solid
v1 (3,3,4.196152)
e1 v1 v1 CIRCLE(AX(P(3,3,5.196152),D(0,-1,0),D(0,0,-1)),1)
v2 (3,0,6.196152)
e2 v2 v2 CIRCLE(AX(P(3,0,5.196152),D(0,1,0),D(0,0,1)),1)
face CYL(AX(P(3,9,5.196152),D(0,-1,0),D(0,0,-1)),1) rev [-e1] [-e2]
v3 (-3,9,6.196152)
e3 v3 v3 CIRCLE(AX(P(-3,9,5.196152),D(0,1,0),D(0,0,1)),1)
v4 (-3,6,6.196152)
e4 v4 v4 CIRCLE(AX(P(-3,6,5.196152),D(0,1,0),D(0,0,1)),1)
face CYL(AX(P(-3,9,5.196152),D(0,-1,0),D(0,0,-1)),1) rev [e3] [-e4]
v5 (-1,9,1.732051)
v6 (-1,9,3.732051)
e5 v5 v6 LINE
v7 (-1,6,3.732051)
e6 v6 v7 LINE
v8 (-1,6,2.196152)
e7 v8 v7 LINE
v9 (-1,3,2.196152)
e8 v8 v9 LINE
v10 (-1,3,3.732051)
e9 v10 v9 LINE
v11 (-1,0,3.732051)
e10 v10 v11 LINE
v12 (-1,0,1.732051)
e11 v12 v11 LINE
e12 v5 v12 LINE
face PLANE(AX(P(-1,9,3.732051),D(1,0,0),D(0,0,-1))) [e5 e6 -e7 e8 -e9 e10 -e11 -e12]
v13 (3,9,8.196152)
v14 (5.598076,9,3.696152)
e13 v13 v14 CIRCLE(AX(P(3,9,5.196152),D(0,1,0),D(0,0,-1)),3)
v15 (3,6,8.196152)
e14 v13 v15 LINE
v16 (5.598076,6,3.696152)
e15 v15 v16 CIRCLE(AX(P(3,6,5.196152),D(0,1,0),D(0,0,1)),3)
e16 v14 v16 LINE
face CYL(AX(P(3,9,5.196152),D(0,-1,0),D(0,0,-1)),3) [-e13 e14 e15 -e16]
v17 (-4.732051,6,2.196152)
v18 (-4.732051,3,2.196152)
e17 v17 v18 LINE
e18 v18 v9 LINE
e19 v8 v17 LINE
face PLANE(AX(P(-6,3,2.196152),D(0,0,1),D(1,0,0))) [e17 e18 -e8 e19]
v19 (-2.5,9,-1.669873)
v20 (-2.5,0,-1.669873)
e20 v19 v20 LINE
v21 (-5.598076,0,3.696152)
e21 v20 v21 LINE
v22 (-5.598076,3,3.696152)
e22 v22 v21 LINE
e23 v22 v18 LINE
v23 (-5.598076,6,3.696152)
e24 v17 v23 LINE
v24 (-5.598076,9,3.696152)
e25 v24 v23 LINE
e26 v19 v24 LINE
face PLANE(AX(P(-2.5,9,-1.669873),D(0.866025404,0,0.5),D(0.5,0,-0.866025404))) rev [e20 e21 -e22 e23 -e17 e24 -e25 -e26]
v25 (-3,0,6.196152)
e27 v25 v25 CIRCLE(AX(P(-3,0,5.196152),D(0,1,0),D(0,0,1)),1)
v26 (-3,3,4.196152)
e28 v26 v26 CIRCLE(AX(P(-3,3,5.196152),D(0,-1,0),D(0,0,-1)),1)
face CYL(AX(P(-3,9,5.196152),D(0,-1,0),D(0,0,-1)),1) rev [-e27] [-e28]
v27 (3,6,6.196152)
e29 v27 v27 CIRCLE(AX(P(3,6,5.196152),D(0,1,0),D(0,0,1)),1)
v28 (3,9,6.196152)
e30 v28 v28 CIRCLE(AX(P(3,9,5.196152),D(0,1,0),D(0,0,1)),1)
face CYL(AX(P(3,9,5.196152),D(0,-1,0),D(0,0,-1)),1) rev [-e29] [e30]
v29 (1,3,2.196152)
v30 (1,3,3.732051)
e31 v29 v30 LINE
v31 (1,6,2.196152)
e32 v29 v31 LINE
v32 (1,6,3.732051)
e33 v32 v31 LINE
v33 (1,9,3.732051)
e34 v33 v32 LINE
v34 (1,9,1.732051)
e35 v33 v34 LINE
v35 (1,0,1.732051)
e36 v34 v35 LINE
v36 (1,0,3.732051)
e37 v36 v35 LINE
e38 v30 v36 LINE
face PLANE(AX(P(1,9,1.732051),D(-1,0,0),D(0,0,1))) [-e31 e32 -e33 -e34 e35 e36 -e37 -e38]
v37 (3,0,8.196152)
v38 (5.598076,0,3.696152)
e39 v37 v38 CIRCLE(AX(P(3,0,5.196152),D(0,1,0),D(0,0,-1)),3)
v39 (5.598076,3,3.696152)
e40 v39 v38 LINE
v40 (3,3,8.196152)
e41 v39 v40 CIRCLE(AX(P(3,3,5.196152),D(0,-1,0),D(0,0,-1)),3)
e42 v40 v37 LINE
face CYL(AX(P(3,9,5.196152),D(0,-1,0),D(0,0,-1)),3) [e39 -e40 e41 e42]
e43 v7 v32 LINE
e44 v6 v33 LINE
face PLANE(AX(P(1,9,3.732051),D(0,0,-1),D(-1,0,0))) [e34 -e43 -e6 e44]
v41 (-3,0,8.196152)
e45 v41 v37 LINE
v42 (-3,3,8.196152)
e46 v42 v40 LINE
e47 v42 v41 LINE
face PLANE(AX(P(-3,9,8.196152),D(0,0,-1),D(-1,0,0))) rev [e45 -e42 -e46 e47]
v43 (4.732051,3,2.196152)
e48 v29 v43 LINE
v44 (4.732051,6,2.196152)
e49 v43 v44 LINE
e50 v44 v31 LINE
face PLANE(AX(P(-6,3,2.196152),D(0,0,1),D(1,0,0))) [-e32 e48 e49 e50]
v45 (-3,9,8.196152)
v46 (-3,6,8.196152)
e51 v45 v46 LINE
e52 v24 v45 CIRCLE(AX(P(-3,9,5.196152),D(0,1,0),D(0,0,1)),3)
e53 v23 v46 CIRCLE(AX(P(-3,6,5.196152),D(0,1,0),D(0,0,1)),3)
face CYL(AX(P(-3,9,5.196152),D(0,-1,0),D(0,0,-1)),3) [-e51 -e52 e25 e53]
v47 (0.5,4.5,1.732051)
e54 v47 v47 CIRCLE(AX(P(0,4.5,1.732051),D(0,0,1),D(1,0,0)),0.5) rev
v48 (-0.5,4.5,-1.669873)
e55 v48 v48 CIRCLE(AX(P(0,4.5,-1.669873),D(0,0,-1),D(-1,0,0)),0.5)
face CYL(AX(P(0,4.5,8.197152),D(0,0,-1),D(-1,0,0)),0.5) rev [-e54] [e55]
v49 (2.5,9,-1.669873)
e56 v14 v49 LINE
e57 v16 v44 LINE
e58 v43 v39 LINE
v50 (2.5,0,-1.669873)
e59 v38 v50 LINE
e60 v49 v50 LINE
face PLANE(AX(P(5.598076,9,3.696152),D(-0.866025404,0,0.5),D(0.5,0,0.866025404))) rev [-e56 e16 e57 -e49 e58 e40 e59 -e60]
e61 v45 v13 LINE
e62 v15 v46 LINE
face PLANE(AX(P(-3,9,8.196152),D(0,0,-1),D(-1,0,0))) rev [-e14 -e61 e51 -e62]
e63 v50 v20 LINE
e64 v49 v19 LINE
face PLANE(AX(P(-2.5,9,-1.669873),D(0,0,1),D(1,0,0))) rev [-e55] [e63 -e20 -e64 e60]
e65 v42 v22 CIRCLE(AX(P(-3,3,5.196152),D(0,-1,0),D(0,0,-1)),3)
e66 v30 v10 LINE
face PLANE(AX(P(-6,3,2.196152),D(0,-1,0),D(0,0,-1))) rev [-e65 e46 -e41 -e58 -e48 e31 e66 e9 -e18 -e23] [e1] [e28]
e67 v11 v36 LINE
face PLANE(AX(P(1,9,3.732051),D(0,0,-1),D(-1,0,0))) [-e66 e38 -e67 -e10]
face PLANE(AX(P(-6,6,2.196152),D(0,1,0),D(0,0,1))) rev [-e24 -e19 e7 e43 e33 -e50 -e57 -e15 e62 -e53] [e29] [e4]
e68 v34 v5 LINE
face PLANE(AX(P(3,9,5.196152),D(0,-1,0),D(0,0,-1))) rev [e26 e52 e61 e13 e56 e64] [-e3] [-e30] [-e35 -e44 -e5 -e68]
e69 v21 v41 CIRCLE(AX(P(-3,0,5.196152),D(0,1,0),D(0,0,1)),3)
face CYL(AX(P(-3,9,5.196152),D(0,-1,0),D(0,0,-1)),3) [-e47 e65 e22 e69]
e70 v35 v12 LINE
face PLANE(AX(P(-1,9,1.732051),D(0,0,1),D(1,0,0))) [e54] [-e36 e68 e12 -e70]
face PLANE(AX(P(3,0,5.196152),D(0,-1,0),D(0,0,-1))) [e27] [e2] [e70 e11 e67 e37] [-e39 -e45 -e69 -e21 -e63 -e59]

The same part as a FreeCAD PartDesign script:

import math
import FreeCAD as App
import Part
import Sketcher
Q = App.Units.Quantity


def add_polygon(sketch, points):
    """Adds a closed chain of lines whose ends are joined by coincident constraints."""
    first, n = sketch.GeometryCount, len(points)
    for a, b in zip(points, points[1:] + points[:1]):
        sketch.addGeometry(Part.LineSegment(App.Vector(*a, 0), App.Vector(*b, 0)), False)
    for i in range(n):
        sketch.addConstraint(Sketcher.Constraint("Coincident", first + i, 2, first + (i + 1) % n, 1))

doc = App.newDocument("Part")
body = doc.addObject("PartDesign::Body", "Body")

# Sketch on XZ plane
sketch1 = body.newObject("Sketcher::SketchObject", "Sketch")
sketch1.AttachmentSupport = (doc.getObject("XZ_Plane"), [""])
sketch1.MapMode = "FlatFace"
sketch1.addGeometry(Part.LineSegment(App.Vector(5.598076, 3.696152, 0), App.Vector(2.5, -1.669873, 0)), False)  # 0
sketch1.addGeometry(Part.LineSegment(App.Vector(2.5, -1.669873, 0), App.Vector(-2.5, -1.669873, 0)), False)  # 1
sketch1.addGeometry(Part.LineSegment(App.Vector(-2.5, -1.669873, 0), App.Vector(-5.598076, 3.696152, 0)), False)  # 2
sketch1.addGeometry(Part.ArcOfCircle(Part.Circle(App.Vector(-3, 5.196152, 0), App.Vector(0, 0, 1), 3), math.radians(90), math.radians(210)), False)  # 3
sketch1.addGeometry(Part.LineSegment(App.Vector(-3, 8.196152, 0), App.Vector(3, 8.196152, 0)), False)  # 4
sketch1.addGeometry(Part.ArcOfCircle(Part.Circle(App.Vector(3, 5.196152, 0), App.Vector(0, 0, 1), 3), math.radians(-30), math.radians(90)), False)  # 5
sketch1.addGeometry(Part.Circle(App.Vector(-3, 5.196152, 0), App.Vector(0, 0, 1), 1), False)  # 6
sketch1.addGeometry(Part.Circle(App.Vector(3, 5.196152, 0), App.Vector(0, 0, 1), 1), False)  # 7
add_polygon(sketch1, [(1, 3.732051), (-1, 3.732051), (-1, 1.732051), (1, 1.732051)])  # lines 8-11
sketch1.addConstraint([
    Sketcher.Constraint("Coincident", 0, 2, 1, 1),
    Sketcher.Constraint("Coincident", 1, 2, 2, 1),
    Sketcher.Constraint("Tangent", 2, 2, 3, 2),
    Sketcher.Constraint("Tangent", 3, 1, 4, 1),
    Sketcher.Constraint("Tangent", 4, 2, 5, 2),
    Sketcher.Constraint("Tangent", 5, 1, 0, 1),
    Sketcher.Constraint("Horizontal", 1),
    Sketcher.Constraint("Horizontal", 4),
    Sketcher.Constraint("Horizontal", 8),
    Sketcher.Constraint("Vertical", 9),
    Sketcher.Constraint("Horizontal", 10),
    Sketcher.Constraint("Vertical", 11),
    Sketcher.Constraint("Coincident", 6, 3, 3, 3),
    Sketcher.Constraint("Coincident", 7, 3, 5, 3),
    Sketcher.Constraint("Equal", 3, 5),
    Sketcher.Constraint("Equal", 6, 7),
    Sketcher.Constraint("Symmetric", 2, 2, 5, 1, -2),
    Sketcher.Constraint("Equal", 10, 9),
    Sketcher.Constraint("Diameter", 6, Q("2 mm")),
    Sketcher.Constraint("Radius", 3, Q("3 mm")),
    Sketcher.Constraint("DistanceX", 1, 2, 1, 1, Q("5 mm")),
    Sketcher.Constraint("DistanceX", 4, 1, 4, 2, Q("6 mm")),
    Sketcher.Constraint("DistanceX", 8, 2, 8, 1, Q("2 mm")),
    Sketcher.Constraint("Angle", 0, Q("-120 deg")),
    Sketcher.Constraint("DistanceX", 8, 2, -1, 1, Q("1 mm")),
    Sketcher.Constraint("DistanceY", 8, 2, 3, 3, Q("1.464102 mm")),
    Sketcher.Constraint("DistanceY", -1, 1, 8, 2, Q("3.732051 mm")),
])
pad1 = body.newObject("PartDesign::Pad", "Pad")
pad1.Profile = sketch1
pad1.Length = 9
pad1.Reversed = True

# Sketch on XY plane
sketch2 = body.newObject("Sketcher::SketchObject", "Sketch001")
sketch2.AttachmentSupport = (doc.getObject("XY_Plane"), [""])
sketch2.MapMode = "FlatFace"
sketch2.AttachmentOffset = App.Placement(App.Vector(0, 0, 8.196152), App.Rotation())
add_polygon(sketch2, [(-6, 6), (-6, 3), (6, 3), (6, 6)])  # lines 0-3
sketch2.addConstraint([
    Sketcher.Constraint("Vertical", 0),
    Sketcher.Constraint("Horizontal", 1),
    Sketcher.Constraint("Vertical", 2),
    Sketcher.Constraint("Horizontal", 3),
    Sketcher.Constraint("DistanceX", 1, 1, 1, 2, Q("12 mm")),
    Sketcher.Constraint("DistanceY", 0, 2, 0, 1, Q("3 mm")),
    Sketcher.Constraint("DistanceX", 0, 2, -1, 1, Q("6 mm")),
    Sketcher.Constraint("DistanceY", -1, 1, 0, 2, Q("3 mm")),
])
pocket1 = body.newObject("PartDesign::Pocket", "Pocket")
pocket1.Profile = sketch2
pocket1.Length = 6

# Sketch on XY plane
sketch3 = body.newObject("Sketcher::SketchObject", "Sketch002")
sketch3.AttachmentSupport = (doc.getObject("XY_Plane"), [""])
sketch3.MapMode = "FlatFace"
sketch3.AttachmentOffset = App.Placement(App.Vector(0, 0, -1.669873), App.Rotation())
sketch3.addGeometry(Part.Circle(App.Vector(0, 4.5, 0), App.Vector(0, 0, 1), 0.5), False)
sketch3.addConstraint([
    Sketcher.Constraint("PointOnObject", 0, 3, -2),
    Sketcher.Constraint("Diameter", 0, Q("1 mm")),
    Sketcher.Constraint("DistanceY", -1, 1, 0, 3, Q("4.5 mm")),
])
pocket2 = body.newObject("PartDesign::Pocket", "Pocket001")
pocket2.Profile = sketch3
pocket2.Type = "UpToFirst"
pocket2.Reversed = True

doc.recompute()
